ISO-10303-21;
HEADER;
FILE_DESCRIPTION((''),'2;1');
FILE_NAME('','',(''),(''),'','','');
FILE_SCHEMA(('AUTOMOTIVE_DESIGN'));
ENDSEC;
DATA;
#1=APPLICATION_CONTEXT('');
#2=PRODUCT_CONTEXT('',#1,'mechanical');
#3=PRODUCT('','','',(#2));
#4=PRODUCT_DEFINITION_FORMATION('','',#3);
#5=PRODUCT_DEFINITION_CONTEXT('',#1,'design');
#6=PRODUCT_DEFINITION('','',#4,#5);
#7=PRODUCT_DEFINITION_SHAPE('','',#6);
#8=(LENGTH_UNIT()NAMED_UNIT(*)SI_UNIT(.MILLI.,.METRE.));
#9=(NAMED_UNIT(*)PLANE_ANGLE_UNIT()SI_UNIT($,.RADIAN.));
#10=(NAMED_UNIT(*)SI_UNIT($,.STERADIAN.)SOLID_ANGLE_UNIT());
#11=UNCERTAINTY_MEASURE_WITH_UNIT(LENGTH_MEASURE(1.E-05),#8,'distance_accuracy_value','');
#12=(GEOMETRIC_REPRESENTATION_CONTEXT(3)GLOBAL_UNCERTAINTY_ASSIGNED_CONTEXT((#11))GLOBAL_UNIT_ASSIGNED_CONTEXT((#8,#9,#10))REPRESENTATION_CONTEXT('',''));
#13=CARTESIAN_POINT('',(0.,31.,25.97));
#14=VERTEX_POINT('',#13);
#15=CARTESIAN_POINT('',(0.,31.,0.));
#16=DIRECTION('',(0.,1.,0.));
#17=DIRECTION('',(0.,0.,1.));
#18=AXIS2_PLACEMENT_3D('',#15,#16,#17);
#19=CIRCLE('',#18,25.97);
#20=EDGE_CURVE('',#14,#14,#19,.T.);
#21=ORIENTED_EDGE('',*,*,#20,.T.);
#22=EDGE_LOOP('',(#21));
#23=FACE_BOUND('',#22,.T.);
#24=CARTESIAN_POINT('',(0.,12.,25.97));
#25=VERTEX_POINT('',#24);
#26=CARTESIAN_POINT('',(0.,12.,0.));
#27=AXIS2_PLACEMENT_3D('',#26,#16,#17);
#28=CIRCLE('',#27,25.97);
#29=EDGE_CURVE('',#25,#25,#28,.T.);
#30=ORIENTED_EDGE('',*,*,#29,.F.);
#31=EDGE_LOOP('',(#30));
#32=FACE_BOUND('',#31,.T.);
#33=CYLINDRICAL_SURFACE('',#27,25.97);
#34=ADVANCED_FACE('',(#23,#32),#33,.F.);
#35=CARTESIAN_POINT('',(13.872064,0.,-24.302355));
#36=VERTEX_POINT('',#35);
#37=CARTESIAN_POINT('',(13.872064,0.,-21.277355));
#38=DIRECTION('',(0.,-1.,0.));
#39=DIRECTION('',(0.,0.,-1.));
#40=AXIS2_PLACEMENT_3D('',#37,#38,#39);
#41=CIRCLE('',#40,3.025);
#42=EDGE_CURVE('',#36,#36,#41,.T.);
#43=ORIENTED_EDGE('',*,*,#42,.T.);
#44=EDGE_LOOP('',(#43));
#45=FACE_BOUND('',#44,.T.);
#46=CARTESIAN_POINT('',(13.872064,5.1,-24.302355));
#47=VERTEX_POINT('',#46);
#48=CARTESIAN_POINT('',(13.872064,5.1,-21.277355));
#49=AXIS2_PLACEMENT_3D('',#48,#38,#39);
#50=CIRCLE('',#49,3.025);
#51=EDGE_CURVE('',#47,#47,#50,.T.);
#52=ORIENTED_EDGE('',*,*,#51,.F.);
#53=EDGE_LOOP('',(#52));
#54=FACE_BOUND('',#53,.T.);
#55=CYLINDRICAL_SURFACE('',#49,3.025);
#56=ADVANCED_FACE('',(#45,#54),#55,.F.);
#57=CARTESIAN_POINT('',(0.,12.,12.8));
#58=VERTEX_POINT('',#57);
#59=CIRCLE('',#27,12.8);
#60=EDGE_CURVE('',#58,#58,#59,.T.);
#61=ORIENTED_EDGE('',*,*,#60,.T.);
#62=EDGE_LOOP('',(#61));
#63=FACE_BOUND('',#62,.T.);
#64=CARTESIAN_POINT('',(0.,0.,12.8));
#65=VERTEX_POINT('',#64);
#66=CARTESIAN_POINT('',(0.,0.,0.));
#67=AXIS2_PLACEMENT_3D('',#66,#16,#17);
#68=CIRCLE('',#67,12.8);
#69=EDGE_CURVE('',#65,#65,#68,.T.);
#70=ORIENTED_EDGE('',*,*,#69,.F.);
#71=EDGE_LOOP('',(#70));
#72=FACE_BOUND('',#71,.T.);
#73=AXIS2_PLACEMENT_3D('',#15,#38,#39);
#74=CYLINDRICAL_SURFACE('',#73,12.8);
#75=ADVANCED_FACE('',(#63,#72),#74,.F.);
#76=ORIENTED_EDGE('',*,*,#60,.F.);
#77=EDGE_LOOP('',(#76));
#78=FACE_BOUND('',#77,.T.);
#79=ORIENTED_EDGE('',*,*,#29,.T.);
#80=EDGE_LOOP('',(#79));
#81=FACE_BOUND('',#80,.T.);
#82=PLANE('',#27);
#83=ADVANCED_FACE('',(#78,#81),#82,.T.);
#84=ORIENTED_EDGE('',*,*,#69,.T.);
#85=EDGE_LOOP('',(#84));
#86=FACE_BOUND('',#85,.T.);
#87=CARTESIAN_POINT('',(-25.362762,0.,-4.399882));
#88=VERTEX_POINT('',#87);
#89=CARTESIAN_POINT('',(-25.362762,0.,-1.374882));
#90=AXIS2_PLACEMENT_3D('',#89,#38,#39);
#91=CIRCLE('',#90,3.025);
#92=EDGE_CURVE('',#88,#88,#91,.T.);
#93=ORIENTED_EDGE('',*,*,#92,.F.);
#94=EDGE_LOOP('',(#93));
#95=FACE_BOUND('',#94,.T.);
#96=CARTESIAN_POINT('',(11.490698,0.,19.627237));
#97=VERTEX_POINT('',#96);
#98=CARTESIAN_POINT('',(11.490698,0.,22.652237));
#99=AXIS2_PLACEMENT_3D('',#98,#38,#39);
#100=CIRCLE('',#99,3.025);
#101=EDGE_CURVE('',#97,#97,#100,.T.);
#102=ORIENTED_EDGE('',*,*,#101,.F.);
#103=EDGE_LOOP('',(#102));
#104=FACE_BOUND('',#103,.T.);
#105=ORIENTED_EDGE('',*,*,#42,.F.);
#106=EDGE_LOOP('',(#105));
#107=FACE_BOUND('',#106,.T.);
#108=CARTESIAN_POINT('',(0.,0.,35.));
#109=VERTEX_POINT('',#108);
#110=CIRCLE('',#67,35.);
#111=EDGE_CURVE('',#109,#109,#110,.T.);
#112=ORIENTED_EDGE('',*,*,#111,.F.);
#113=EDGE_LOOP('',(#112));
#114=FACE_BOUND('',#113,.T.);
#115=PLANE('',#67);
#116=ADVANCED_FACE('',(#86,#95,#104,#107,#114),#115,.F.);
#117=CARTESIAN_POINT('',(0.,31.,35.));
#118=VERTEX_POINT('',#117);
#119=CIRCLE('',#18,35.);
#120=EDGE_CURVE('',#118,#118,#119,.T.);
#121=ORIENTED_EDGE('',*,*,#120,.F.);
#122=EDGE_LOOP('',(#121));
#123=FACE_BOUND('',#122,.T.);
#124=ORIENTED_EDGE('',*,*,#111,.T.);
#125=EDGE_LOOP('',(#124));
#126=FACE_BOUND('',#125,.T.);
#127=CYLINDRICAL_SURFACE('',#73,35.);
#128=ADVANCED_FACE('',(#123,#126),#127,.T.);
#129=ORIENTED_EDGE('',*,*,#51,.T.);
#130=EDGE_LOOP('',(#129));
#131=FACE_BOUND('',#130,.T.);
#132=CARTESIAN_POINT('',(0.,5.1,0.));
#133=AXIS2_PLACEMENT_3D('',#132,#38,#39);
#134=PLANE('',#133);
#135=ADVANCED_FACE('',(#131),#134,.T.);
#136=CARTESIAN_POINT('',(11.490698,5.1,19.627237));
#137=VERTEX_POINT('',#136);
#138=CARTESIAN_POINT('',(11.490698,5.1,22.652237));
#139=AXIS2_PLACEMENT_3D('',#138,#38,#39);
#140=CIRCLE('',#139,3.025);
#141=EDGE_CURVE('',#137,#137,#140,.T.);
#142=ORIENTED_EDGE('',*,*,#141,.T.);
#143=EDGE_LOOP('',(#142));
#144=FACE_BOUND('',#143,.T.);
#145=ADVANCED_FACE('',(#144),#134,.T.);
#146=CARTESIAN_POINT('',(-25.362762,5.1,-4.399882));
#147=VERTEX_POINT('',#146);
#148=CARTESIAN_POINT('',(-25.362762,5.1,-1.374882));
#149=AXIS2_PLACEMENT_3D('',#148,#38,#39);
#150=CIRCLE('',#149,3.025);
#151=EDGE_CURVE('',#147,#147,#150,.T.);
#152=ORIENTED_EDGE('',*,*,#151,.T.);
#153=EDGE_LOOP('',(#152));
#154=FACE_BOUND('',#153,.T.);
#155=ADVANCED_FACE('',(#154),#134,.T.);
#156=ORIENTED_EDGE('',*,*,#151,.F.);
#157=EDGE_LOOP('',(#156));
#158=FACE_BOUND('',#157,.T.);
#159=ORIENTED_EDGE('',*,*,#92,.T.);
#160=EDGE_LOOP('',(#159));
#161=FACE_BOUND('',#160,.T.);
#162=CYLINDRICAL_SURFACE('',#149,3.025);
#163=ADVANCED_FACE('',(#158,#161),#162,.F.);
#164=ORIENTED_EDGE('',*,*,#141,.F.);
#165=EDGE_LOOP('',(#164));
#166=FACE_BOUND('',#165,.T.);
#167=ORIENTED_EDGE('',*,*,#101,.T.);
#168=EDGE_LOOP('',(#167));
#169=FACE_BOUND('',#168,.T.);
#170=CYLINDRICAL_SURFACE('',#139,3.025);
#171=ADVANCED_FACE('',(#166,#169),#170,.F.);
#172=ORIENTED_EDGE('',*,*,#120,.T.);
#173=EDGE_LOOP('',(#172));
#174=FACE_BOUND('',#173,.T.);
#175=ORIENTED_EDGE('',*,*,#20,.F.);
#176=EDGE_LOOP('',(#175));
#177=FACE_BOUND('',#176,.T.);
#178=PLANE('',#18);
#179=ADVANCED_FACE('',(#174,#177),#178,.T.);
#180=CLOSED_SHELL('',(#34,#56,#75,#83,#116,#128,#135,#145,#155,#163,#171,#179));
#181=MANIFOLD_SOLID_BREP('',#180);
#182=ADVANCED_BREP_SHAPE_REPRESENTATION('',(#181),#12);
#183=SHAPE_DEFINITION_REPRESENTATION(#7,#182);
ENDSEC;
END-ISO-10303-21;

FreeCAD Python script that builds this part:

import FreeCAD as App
import Part
import Sketcher
Q = App.Units.Quantity

doc = App.newDocument("Part")
body = doc.addObject("PartDesign::Body", "Body")

sketch1 = body.newObject("Sketcher::SketchObject", "Sketch")
sketch1.AttachmentSupport = (doc.getObject("XZ_Plane"), [""])
sketch1.MapMode = "FlatFace"
sketch1.addGeometry(Part.Circle(App.Vector(0, 0, 0), App.Vector(0, 0, 1), 35), False)
sketch1.addGeometry(Part.Circle(App.Vector(0, 0, 0), App.Vector(0, 0, 1), 12.8), False)
sketch1.addConstraint(Sketcher.Constraint("Coincident", 0, 3, -1, 1))
sketch1.addConstraint(Sketcher.Constraint("Coincident", 1, 3, -1, 1))
sketch1.addConstraint(Sketcher.Constraint("Diameter", 0, Q("70 mm")))
sketch1.addConstraint(Sketcher.Constraint("Diameter", 1, Q("25.6 mm")))
pad1 = body.newObject("PartDesign::Pad", "Pad")
pad1.Profile = sketch1
pad1.Length = 31
pad1.Reversed = True

sketch2 = body.newObject("Sketcher::SketchObject", "Sketch001")
sketch2.AttachmentSupport = (doc.getObject("XZ_Plane"), [""])
sketch2.MapMode = "FlatFace"
sketch2.AttachmentOffset = App.Placement(App.Vector(0, 0, -31), App.Rotation())
sketch2.addGeometry(Part.Circle(App.Vector(0, 0, 0), App.Vector(0, 0, 1), 25.97), False)
sketch2.addConstraint(Sketcher.Constraint("Coincident", 0, 3, -1, 1))
sketch2.addConstraint(Sketcher.Constraint("Diameter", 0, Q("51.94 mm")))
pocket1 = body.newObject("PartDesign::Pocket", "Pocket")
pocket1.Profile = sketch2
pocket1.Length = 19
pocket1.Reversed = True

sketch3 = body.newObject("Sketcher::SketchObject", "Sketch002")
sketch3.AttachmentSupport = (doc.getObject("XZ_Plane"), [""])
sketch3.MapMode = "FlatFace"
sketch3.addGeometry(Part.Circle(App.Vector(-25.362762, -1.374882, 0), App.Vector(0, 0, 1), 3.025), False)
sketch3.addGeometry(Part.Circle(App.Vector(11.490698, 22.652237, 0), App.Vector(0, 0, 1), 3.025), False)
sketch3.addGeometry(Part.Circle(App.Vector(13.872064, -21.277355, 0), App.Vector(0, 0, 1), 3.025), False)
sketch3.addConstraint(Sketcher.Constraint("Equal", 0, 1))
sketch3.addConstraint(Sketcher.Constraint("Equal", 1, 2))
sketch3.addConstraint(Sketcher.Constraint("Diameter", 0, Q("6.05 mm")))
sketch3.addConstraint(Sketcher.Constraint("DistanceX", 0, 3, 1, 3, Q("36.85346 mm")))
sketch3.addConstraint(Sketcher.Constraint("DistanceY", 0, 3, 1, 3, Q("24.02712 mm")))
sketch3.addConstraint(Sketcher.Constraint("DistanceX", 0, 3, -1, 1, Q("25.362762 mm")))
sketch3.addConstraint(Sketcher.Constraint("DistanceY", 0, 3, -1, 1, Q("1.374882 mm")))
sketch3.addConstraint(Sketcher.Constraint("DistanceX", -1, 1, 2, 3, Q("13.872064 mm")))
sketch3.addConstraint(Sketcher.Constraint("DistanceY", 2, 3, -1, 1, Q("21.277355 mm")))
pocket2 = body.newObject("PartDesign::Pocket", "Pocket001")
pocket2.Profile = sketch3
pocket2.Length = 5.1

doc.recompute()
